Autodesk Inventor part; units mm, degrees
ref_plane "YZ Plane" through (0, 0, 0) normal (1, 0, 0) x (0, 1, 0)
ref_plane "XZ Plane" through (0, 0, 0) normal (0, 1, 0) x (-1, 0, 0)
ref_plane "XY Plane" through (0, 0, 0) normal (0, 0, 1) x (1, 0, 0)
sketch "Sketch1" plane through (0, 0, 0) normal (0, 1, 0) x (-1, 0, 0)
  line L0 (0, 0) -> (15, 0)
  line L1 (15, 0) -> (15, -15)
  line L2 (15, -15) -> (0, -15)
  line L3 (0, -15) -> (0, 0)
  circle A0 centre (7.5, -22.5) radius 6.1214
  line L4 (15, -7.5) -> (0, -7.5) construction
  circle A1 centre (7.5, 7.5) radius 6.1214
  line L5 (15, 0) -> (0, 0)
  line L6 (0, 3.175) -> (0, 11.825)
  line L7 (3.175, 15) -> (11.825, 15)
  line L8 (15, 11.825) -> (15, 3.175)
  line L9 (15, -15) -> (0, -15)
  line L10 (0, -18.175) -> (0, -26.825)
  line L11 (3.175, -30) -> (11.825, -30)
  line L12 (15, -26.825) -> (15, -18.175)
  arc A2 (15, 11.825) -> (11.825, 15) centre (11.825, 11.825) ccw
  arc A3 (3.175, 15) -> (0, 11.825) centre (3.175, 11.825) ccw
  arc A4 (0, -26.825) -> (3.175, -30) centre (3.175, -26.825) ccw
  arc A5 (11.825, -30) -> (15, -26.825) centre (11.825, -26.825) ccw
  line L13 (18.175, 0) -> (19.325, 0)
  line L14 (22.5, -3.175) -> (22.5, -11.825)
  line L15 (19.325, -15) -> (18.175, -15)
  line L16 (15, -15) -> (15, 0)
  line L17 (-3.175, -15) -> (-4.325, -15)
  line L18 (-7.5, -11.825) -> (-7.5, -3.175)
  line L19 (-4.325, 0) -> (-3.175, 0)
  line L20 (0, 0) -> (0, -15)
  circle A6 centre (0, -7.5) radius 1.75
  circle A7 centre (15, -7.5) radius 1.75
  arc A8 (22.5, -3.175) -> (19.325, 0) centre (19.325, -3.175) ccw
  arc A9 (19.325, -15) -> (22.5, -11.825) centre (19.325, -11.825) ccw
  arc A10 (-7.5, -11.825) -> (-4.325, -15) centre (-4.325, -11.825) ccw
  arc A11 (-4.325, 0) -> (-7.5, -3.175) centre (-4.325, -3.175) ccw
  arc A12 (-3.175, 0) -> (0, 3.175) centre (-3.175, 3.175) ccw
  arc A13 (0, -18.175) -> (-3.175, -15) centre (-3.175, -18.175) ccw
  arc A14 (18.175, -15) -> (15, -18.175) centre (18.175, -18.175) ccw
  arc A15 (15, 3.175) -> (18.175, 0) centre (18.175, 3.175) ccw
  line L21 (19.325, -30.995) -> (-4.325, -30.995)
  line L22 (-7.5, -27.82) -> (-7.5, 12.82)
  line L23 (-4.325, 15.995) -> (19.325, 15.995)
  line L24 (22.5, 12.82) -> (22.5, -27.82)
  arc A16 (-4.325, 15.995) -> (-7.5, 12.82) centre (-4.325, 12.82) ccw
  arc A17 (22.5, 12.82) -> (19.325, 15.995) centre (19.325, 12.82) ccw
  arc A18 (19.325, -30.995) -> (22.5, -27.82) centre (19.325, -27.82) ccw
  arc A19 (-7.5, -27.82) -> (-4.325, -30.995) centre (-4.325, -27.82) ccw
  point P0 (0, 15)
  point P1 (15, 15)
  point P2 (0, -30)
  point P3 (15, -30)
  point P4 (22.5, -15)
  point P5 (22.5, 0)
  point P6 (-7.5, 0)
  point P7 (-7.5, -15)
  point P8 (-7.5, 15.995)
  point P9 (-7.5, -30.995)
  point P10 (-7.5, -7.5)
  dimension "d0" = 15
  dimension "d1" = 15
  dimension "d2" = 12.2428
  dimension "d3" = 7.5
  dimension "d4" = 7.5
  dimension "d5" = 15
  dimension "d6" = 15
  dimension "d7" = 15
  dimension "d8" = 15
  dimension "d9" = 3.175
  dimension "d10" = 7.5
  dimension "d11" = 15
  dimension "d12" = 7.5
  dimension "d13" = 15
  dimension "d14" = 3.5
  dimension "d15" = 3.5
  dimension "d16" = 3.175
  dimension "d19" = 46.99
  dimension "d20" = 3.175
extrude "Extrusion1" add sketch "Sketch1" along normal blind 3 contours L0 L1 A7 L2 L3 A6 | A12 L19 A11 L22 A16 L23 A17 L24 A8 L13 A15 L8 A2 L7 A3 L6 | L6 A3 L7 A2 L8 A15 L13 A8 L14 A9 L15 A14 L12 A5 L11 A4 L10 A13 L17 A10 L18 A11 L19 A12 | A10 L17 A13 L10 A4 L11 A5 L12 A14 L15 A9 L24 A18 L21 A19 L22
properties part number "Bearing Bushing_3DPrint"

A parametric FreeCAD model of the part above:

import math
import FreeCAD as App
import Part
import Sketcher

V = App.Vector
Q = App.Units.Quantity

doc = App.newDocument("Part")
body = doc.addObject("PartDesign::Body", "Body")

sketch1 = body.newObject("Sketcher::SketchObject", "Sketch")
sketch1.AttachmentSupport = (doc.getObject("XZ_Plane"), [""])
sketch1.MapMode = "FlatFace"
sketch1.addGeometry(Part.ArcOfCircle(Part.Circle(V(-19.3, 12.8, 0), V(0, 0, 1), 3.2), math.radians(90), math.radians(180)), False)
sketch1.addGeometry(Part.LineSegment(V(-19.3, 16, 0), V(4.3, 16, 0)), False)
sketch1.addGeometry(Part.ArcOfCircle(Part.Circle(V(4.3, 12.8, 0), V(0, 0, 1), 3.2), math.radians(0), math.radians(90)), False)
sketch1.addGeometry(Part.LineSegment(V(7.5, 12.8, 0), V(7.5, -27.8, 0)), False)
sketch1.addGeometry(Part.ArcOfCircle(Part.Circle(V(4.3, -27.8, 0), V(0, 0, 1), 3.2), math.radians(-90), math.radians(0)), False)
sketch1.addGeometry(Part.LineSegment(V(4.3, -31, 0), V(-19.3, -31, 0)), False)
sketch1.addGeometry(Part.ArcOfCircle(Part.Circle(V(-19.3, -27.8, 0), V(0, 0, 1), 3.2), math.radians(180), math.radians(270)), False)
sketch1.addGeometry(Part.LineSegment(V(-22.5, -27.8, 0), V(-22.5, 12.8, 0)), False)
sketch1.addGeometry(Part.Circle(V(-15, -7.5, 0), V(0, 0, 1), 1.8), False)
sketch1.addGeometry(Part.Circle(V(0, -7.5, 0), V(0, 0, 1), 1.8), False)
sketch1.addGeometry(Part.Circle(V(-7.5, -22.5, 0), V(0, 0, 1), 6.1), False)
sketch1.addGeometry(Part.Circle(V(-7.5, 7.5, 0), V(0, 0, 1), 6.1), False)
sketch1.addConstraint(Sketcher.Constraint("Tangent", 0, 1, 1, 1))
sketch1.addConstraint(Sketcher.Constraint("Tangent", 1, 2, 2, 2))
sketch1.addConstraint(Sketcher.Constraint("Tangent", 2, 1, 3, 1))
sketch1.addConstraint(Sketcher.Constraint("Tangent", 3, 2, 4, 2))
sketch1.addConstraint(Sketcher.Constraint("Tangent", 4, 1, 5, 1))
sketch1.addConstraint(Sketcher.Constraint("Tangent", 5, 2, 6, 2))
sketch1.addConstraint(Sketcher.Constraint("Tangent", 6, 1, 7, 1))
sketch1.addConstraint(Sketcher.Constraint("Tangent", 7, 2, 0, 2))
sketch1.addConstraint(Sketcher.Constraint("Horizontal", 1))
sketch1.addConstraint(Sketcher.Constraint("Vertical", 3))
sketch1.addConstraint(Sketcher.Constraint("Horizontal", 5))
sketch1.addConstraint(Sketcher.Constraint("Vertical", 7))
sketch1.addConstraint(Sketcher.Constraint("Equal", 0, 2))
sketch1.addConstraint(Sketcher.Constraint("Equal", 2, 4))
sketch1.addConstraint(Sketcher.Constraint("Equal", 4, 6))
sketch1.addConstraint(Sketcher.Constraint("Equal", 8, 9))
sketch1.addConstraint(Sketcher.Constraint("Equal", 10, 11))
sketch1.addConstraint(Sketcher.Constraint("PointOnObject", 9, 3, -2))
sketch1.addConstraint(Sketcher.Constraint("Horizontal", 8, 3, 9, 3))
sketch1.addConstraint(Sketcher.Constraint("Vertical", 10, 3, 11, 3))
sketch1.addConstraint(Sketcher.Constraint("Diameter", 10, Q("0.482 in")))
sketch1.addConstraint(Sketcher.Constraint("Radius", 0, Q("0.125 in")))
sketch1.addConstraint(Sketcher.Constraint("Diameter", 8, Q("0.1378 in")))
sketch1.addConstraint(Sketcher.Constraint("DistanceY", 3, 2, 3, 1, Q("1.6 in")))
sketch1.addConstraint(Sketcher.Constraint("DistanceY", 8, 3, 0, 3, Q("0.8 in")))
sketch1.addConstraint(Sketcher.Constraint("DistanceX", 8, 3, -1, 1, Q("15 mm")))
sketch1.addConstraint(Sketcher.Constraint("DistanceY", 8, 3, -1, 1, Q("7.5 mm")))
sketch1.addConstraint(Sketcher.Constraint("DistanceX", 10, 3, -1, 1, Q("7.5 mm")))
sketch1.addConstraint(Sketcher.Constraint("DistanceY", -1, 1, 11, 3, Q("7.5 mm")))
sketch1.addConstraint(Sketcher.Constraint("DistanceX", -1, 1, 2, 1, Q("7.5 mm")))
sketch1.addConstraint(Sketcher.Constraint("DistanceY", 10, 3, 8, 3, Q("15 mm")))
sketch1.addConstraint(Sketcher.Constraint("DistanceX", 6, 1, 10, 3, Q("15 mm")))
pad1 = body.newObject("PartDesign::Pad", "Pad")
pad1.Profile = sketch1
pad1.Length = Q("0.1181102 in")
pad1.Reversed = True

doc.recompute()
